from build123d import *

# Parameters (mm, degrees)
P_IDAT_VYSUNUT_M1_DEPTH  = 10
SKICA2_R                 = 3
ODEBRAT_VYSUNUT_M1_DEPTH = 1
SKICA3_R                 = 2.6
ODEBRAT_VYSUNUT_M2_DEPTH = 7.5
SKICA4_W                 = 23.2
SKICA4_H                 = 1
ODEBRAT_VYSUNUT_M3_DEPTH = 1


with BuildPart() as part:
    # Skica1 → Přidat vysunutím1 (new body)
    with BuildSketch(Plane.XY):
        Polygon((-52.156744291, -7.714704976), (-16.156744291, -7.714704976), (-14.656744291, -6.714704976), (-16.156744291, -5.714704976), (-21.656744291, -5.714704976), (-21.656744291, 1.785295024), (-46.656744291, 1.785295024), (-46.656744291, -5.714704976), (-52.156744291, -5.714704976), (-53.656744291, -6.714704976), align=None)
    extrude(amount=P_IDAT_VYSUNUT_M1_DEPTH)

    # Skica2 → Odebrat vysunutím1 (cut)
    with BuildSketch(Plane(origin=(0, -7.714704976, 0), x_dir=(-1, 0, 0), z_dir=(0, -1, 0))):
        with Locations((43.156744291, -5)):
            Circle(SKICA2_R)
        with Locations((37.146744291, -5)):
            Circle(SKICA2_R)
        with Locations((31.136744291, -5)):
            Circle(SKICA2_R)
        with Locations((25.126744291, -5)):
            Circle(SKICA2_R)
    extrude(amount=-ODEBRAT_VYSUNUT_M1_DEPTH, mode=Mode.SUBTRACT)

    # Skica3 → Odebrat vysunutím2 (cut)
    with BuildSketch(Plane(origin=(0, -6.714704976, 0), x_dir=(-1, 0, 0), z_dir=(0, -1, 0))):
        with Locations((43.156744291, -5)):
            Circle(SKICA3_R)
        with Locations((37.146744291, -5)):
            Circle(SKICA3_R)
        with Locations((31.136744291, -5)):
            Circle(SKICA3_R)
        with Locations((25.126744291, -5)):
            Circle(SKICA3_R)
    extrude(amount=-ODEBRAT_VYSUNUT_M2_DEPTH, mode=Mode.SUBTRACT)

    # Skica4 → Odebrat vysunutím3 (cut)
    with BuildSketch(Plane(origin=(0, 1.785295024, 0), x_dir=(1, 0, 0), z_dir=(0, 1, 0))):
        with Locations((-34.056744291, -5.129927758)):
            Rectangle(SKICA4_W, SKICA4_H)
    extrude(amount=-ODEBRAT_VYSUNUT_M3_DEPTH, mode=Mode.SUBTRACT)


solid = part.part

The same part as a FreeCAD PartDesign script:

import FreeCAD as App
import Part
import Sketcher
Q = App.Units.Quantity


def add_polygon(sketch, points):
    """Adds a closed chain of lines whose ends are joined by coincident constraints."""
    first, n = sketch.GeometryCount, len(points)
    for a, b in zip(points, points[1:] + points[:1]):
        sketch.addGeometry(Part.LineSegment(App.Vector(*a, 0), App.Vector(*b, 0)), False)
    for i in range(n):
        sketch.addConstraint(Sketcher.Constraint("Coincident", first + i, 2, first + (i + 1) % n, 1))

doc = App.newDocument("Part")
body = doc.addObject("PartDesign::Body", "Body")

# Sketch on XY plane
sketch1 = body.newObject("Sketcher::SketchObject", "Sketch")
sketch1.AttachmentSupport = (doc.getObject("XY_Plane"), [""])
sketch1.MapMode = "FlatFace"
add_polygon(sketch1, [(-52.156744, -7.714705), (-16.156744, -7.714705), (-14.656744, -6.714705), (-16.156744, -5.714705), (-21.656744, -5.714705), (-21.656744, 1.785295), (-46.656744, 1.785295), (-46.656744, -5.714705), (-52.156744, -5.714705), (-53.656744, -6.714705)])  # lines 0-9
sketch1.addConstraint([
    Sketcher.Constraint("Horizontal", 0),
    Sketcher.Constraint("Horizontal", 3),
    Sketcher.Constraint("Vertical", 4),
    Sketcher.Constraint("Horizontal", 5),
    Sketcher.Constraint("Vertical", 6),
    Sketcher.Constraint("Horizontal", 7),
    Sketcher.Constraint("Parallel", 1, 8),
    Sketcher.Constraint("Parallel", 2, 9),
    Sketcher.Constraint("Horizontal", 3, 2, 6, 2),
    Sketcher.Constraint("Horizontal", 1, 2, 8, 2),
    Sketcher.Constraint("Vertical", 0, 2, 2, 2),
    Sketcher.Constraint("Vertical", 7, 2, 9, 2),
    Sketcher.Constraint("Equal", 3, 7),
    Sketcher.Constraint("DistanceX", 0, 1, 0, 2, Q("36 mm")),
    Sketcher.Constraint("DistanceX", 5, 2, 5, 1, Q("25 mm")),
    Sketcher.Constraint("DistanceY", 4, 1, 4, 2, Q("7.5 mm")),
    Sketcher.Constraint("DistanceY", 0, 2, 1, 2, Q("1 mm")),
    Sketcher.Constraint("DistanceX", 3, 2, 1, 2, Q("7 mm")),
    Sketcher.Constraint("DistanceX", 0, 2, -1, 1, Q("16.156744 mm")),
    Sketcher.Constraint("DistanceY", 0, 2, -1, 1, Q("7.714705 mm")),
])
pad1 = body.newObject("PartDesign::Pad", "Pad")
pad1.Profile = sketch1
pad1.Length = 10

# Sketch on XZ plane
sketch2 = body.newObject("Sketcher::SketchObject", "Sketch001")
sketch2.AttachmentSupport = (doc.getObject("XZ_Plane"), [""])
sketch2.MapMode = "FlatFace"
sketch2.AttachmentOffset = App.Placement(App.Vector(0, 0, 7.714705), App.Rotation())
sketch2.addGeometry([
    Part.Circle(App.Vector(-43.156744, 5, 0), App.Vector(0, 0, 1), 3),
    Part.Circle(App.Vector(-37.146744, 5, 0), App.Vector(0, 0, 1), 3),
    Part.Circle(App.Vector(-31.136744, 5, 0), App.Vector(0, 0, 1), 3),
    Part.Circle(App.Vector(-25.126744, 5, 0), App.Vector(0, 0, 1), 3),
], False)
sketch2.addConstraint([
    Sketcher.Constraint("Equal", 0, 1),
    Sketcher.Constraint("Equal", 1, 2),
    Sketcher.Constraint("Equal", 2, 3),
    Sketcher.Constraint("Horizontal", 0, 3, 1, 3),
    Sketcher.Constraint("Horizontal", 1, 3, 2, 3),
    Sketcher.Constraint("Horizontal", 2, 3, 3, 3),
    Sketcher.Constraint("Diameter", 0, Q("6 mm")),
    Sketcher.Constraint("DistanceY", -1, 1, 0, 3, Q("5 mm")),
    Sketcher.Constraint("DistanceX", 0, 3, 1, 3, Q("6.01 mm")),
    Sketcher.Constraint("DistanceX", 1, 3, 2, 3, Q("6.01 mm")),
    Sketcher.Constraint("DistanceX", 2, 3, 3, 3, Q("6.01 mm")),
    Sketcher.Constraint("DistanceX", 0, 3, -1, 1, Q("43.156744 mm")),
])
pocket1 = body.newObject("PartDesign::Pocket", "Pocket")
pocket1.Profile = sketch2
pocket1.Length = 1

# Sketch on XZ plane
sketch3 = body.newObject("Sketcher::SketchObject", "Sketch002")
sketch3.AttachmentSupport = (doc.getObject("XZ_Plane"), [""])
sketch3.MapMode = "FlatFace"
sketch3.AttachmentOffset = App.Placement(App.Vector(0, 0, 6.714705), App.Rotation())
sketch3.addGeometry([
    Part.Circle(App.Vector(-43.156744, 5, 0), App.Vector(0, 0, 1), 2.6),
    Part.Circle(App.Vector(-37.146744, 5, 0), App.Vector(0, 0, 1), 2.6),
    Part.Circle(App.Vector(-31.136744, 5, 0), App.Vector(0, 0, 1), 2.6),
    Part.Circle(App.Vector(-25.126744, 5, 0), App.Vector(0, 0, 1), 2.6),
], False)
sketch3.addConstraint([
    Sketcher.Constraint("Equal", 0, 1),
    Sketcher.Constraint("Equal", 1, 2),
    Sketcher.Constraint("Equal", 2, 3),
    Sketcher.Constraint("Horizontal", 0, 3, 1, 3),
    Sketcher.Constraint("Horizontal", 1, 3, 2, 3),
    Sketcher.Constraint("Horizontal", 2, 3, 3, 3),
    Sketcher.Constraint("Diameter", 0, Q("5.2 mm")),
    Sketcher.Constraint("DistanceY", -1, 1, 0, 3, Q("5 mm")),
    Sketcher.Constraint("DistanceX", 0, 3, 1, 3, Q("6.01 mm")),
    Sketcher.Constraint("DistanceX", 1, 3, 2, 3, Q("6.01 mm")),
    Sketcher.Constraint("DistanceX", 2, 3, 3, 3, Q("6.01 mm")),
    Sketcher.Constraint("DistanceX", 0, 3, -1, 1, Q("43.156744 mm")),
])
pocket2 = body.newObject("PartDesign::Pocket", "Pocket001")
pocket2.Profile = sketch3
pocket2.Length = 7.5

# Sketch on XZ plane
sketch4 = body.newObject("Sketcher::SketchObject", "Sketch003")
sketch4.AttachmentSupport = (doc.getObject("XZ_Plane"), [""])
sketch4.MapMode = "FlatFace"
sketch4.AttachmentOffset = App.Placement(App.Vector(0, 0, -1.785295), App.Rotation())
add_polygon(sketch4, [(-45.656744, 4.629928), (-45.656744, 5.629928), (-22.456744, 5.629928), (-22.456744, 4.629928)])  # lines 0-3
sketch4.addConstraint([
    Sketcher.Constraint("Vertical", 0),
    Sketcher.Constraint("Horizontal", 1),
    Sketcher.Constraint("Vertical", 2),
    Sketcher.Constraint("Horizontal", 3),
    Sketcher.Constraint("DistanceY", 0, 1, 0, 2, Q("1 mm")),
    Sketcher.Constraint("DistanceX", 1, 1, 1, 2, Q("23.2 mm")),
    Sketcher.Constraint("DistanceX", 0, 2, -1, 1, Q("45.656744 mm")),
    Sketcher.Constraint("DistanceY", -1, 1, 0, 2, Q("5.629928 mm")),
])
pocket3 = body.newObject("PartDesign::Pocket", "Pocket002")
pocket3.Profile = sketch4
pocket3.Length = 1
pocket3.Reversed = True

doc.recompute()
